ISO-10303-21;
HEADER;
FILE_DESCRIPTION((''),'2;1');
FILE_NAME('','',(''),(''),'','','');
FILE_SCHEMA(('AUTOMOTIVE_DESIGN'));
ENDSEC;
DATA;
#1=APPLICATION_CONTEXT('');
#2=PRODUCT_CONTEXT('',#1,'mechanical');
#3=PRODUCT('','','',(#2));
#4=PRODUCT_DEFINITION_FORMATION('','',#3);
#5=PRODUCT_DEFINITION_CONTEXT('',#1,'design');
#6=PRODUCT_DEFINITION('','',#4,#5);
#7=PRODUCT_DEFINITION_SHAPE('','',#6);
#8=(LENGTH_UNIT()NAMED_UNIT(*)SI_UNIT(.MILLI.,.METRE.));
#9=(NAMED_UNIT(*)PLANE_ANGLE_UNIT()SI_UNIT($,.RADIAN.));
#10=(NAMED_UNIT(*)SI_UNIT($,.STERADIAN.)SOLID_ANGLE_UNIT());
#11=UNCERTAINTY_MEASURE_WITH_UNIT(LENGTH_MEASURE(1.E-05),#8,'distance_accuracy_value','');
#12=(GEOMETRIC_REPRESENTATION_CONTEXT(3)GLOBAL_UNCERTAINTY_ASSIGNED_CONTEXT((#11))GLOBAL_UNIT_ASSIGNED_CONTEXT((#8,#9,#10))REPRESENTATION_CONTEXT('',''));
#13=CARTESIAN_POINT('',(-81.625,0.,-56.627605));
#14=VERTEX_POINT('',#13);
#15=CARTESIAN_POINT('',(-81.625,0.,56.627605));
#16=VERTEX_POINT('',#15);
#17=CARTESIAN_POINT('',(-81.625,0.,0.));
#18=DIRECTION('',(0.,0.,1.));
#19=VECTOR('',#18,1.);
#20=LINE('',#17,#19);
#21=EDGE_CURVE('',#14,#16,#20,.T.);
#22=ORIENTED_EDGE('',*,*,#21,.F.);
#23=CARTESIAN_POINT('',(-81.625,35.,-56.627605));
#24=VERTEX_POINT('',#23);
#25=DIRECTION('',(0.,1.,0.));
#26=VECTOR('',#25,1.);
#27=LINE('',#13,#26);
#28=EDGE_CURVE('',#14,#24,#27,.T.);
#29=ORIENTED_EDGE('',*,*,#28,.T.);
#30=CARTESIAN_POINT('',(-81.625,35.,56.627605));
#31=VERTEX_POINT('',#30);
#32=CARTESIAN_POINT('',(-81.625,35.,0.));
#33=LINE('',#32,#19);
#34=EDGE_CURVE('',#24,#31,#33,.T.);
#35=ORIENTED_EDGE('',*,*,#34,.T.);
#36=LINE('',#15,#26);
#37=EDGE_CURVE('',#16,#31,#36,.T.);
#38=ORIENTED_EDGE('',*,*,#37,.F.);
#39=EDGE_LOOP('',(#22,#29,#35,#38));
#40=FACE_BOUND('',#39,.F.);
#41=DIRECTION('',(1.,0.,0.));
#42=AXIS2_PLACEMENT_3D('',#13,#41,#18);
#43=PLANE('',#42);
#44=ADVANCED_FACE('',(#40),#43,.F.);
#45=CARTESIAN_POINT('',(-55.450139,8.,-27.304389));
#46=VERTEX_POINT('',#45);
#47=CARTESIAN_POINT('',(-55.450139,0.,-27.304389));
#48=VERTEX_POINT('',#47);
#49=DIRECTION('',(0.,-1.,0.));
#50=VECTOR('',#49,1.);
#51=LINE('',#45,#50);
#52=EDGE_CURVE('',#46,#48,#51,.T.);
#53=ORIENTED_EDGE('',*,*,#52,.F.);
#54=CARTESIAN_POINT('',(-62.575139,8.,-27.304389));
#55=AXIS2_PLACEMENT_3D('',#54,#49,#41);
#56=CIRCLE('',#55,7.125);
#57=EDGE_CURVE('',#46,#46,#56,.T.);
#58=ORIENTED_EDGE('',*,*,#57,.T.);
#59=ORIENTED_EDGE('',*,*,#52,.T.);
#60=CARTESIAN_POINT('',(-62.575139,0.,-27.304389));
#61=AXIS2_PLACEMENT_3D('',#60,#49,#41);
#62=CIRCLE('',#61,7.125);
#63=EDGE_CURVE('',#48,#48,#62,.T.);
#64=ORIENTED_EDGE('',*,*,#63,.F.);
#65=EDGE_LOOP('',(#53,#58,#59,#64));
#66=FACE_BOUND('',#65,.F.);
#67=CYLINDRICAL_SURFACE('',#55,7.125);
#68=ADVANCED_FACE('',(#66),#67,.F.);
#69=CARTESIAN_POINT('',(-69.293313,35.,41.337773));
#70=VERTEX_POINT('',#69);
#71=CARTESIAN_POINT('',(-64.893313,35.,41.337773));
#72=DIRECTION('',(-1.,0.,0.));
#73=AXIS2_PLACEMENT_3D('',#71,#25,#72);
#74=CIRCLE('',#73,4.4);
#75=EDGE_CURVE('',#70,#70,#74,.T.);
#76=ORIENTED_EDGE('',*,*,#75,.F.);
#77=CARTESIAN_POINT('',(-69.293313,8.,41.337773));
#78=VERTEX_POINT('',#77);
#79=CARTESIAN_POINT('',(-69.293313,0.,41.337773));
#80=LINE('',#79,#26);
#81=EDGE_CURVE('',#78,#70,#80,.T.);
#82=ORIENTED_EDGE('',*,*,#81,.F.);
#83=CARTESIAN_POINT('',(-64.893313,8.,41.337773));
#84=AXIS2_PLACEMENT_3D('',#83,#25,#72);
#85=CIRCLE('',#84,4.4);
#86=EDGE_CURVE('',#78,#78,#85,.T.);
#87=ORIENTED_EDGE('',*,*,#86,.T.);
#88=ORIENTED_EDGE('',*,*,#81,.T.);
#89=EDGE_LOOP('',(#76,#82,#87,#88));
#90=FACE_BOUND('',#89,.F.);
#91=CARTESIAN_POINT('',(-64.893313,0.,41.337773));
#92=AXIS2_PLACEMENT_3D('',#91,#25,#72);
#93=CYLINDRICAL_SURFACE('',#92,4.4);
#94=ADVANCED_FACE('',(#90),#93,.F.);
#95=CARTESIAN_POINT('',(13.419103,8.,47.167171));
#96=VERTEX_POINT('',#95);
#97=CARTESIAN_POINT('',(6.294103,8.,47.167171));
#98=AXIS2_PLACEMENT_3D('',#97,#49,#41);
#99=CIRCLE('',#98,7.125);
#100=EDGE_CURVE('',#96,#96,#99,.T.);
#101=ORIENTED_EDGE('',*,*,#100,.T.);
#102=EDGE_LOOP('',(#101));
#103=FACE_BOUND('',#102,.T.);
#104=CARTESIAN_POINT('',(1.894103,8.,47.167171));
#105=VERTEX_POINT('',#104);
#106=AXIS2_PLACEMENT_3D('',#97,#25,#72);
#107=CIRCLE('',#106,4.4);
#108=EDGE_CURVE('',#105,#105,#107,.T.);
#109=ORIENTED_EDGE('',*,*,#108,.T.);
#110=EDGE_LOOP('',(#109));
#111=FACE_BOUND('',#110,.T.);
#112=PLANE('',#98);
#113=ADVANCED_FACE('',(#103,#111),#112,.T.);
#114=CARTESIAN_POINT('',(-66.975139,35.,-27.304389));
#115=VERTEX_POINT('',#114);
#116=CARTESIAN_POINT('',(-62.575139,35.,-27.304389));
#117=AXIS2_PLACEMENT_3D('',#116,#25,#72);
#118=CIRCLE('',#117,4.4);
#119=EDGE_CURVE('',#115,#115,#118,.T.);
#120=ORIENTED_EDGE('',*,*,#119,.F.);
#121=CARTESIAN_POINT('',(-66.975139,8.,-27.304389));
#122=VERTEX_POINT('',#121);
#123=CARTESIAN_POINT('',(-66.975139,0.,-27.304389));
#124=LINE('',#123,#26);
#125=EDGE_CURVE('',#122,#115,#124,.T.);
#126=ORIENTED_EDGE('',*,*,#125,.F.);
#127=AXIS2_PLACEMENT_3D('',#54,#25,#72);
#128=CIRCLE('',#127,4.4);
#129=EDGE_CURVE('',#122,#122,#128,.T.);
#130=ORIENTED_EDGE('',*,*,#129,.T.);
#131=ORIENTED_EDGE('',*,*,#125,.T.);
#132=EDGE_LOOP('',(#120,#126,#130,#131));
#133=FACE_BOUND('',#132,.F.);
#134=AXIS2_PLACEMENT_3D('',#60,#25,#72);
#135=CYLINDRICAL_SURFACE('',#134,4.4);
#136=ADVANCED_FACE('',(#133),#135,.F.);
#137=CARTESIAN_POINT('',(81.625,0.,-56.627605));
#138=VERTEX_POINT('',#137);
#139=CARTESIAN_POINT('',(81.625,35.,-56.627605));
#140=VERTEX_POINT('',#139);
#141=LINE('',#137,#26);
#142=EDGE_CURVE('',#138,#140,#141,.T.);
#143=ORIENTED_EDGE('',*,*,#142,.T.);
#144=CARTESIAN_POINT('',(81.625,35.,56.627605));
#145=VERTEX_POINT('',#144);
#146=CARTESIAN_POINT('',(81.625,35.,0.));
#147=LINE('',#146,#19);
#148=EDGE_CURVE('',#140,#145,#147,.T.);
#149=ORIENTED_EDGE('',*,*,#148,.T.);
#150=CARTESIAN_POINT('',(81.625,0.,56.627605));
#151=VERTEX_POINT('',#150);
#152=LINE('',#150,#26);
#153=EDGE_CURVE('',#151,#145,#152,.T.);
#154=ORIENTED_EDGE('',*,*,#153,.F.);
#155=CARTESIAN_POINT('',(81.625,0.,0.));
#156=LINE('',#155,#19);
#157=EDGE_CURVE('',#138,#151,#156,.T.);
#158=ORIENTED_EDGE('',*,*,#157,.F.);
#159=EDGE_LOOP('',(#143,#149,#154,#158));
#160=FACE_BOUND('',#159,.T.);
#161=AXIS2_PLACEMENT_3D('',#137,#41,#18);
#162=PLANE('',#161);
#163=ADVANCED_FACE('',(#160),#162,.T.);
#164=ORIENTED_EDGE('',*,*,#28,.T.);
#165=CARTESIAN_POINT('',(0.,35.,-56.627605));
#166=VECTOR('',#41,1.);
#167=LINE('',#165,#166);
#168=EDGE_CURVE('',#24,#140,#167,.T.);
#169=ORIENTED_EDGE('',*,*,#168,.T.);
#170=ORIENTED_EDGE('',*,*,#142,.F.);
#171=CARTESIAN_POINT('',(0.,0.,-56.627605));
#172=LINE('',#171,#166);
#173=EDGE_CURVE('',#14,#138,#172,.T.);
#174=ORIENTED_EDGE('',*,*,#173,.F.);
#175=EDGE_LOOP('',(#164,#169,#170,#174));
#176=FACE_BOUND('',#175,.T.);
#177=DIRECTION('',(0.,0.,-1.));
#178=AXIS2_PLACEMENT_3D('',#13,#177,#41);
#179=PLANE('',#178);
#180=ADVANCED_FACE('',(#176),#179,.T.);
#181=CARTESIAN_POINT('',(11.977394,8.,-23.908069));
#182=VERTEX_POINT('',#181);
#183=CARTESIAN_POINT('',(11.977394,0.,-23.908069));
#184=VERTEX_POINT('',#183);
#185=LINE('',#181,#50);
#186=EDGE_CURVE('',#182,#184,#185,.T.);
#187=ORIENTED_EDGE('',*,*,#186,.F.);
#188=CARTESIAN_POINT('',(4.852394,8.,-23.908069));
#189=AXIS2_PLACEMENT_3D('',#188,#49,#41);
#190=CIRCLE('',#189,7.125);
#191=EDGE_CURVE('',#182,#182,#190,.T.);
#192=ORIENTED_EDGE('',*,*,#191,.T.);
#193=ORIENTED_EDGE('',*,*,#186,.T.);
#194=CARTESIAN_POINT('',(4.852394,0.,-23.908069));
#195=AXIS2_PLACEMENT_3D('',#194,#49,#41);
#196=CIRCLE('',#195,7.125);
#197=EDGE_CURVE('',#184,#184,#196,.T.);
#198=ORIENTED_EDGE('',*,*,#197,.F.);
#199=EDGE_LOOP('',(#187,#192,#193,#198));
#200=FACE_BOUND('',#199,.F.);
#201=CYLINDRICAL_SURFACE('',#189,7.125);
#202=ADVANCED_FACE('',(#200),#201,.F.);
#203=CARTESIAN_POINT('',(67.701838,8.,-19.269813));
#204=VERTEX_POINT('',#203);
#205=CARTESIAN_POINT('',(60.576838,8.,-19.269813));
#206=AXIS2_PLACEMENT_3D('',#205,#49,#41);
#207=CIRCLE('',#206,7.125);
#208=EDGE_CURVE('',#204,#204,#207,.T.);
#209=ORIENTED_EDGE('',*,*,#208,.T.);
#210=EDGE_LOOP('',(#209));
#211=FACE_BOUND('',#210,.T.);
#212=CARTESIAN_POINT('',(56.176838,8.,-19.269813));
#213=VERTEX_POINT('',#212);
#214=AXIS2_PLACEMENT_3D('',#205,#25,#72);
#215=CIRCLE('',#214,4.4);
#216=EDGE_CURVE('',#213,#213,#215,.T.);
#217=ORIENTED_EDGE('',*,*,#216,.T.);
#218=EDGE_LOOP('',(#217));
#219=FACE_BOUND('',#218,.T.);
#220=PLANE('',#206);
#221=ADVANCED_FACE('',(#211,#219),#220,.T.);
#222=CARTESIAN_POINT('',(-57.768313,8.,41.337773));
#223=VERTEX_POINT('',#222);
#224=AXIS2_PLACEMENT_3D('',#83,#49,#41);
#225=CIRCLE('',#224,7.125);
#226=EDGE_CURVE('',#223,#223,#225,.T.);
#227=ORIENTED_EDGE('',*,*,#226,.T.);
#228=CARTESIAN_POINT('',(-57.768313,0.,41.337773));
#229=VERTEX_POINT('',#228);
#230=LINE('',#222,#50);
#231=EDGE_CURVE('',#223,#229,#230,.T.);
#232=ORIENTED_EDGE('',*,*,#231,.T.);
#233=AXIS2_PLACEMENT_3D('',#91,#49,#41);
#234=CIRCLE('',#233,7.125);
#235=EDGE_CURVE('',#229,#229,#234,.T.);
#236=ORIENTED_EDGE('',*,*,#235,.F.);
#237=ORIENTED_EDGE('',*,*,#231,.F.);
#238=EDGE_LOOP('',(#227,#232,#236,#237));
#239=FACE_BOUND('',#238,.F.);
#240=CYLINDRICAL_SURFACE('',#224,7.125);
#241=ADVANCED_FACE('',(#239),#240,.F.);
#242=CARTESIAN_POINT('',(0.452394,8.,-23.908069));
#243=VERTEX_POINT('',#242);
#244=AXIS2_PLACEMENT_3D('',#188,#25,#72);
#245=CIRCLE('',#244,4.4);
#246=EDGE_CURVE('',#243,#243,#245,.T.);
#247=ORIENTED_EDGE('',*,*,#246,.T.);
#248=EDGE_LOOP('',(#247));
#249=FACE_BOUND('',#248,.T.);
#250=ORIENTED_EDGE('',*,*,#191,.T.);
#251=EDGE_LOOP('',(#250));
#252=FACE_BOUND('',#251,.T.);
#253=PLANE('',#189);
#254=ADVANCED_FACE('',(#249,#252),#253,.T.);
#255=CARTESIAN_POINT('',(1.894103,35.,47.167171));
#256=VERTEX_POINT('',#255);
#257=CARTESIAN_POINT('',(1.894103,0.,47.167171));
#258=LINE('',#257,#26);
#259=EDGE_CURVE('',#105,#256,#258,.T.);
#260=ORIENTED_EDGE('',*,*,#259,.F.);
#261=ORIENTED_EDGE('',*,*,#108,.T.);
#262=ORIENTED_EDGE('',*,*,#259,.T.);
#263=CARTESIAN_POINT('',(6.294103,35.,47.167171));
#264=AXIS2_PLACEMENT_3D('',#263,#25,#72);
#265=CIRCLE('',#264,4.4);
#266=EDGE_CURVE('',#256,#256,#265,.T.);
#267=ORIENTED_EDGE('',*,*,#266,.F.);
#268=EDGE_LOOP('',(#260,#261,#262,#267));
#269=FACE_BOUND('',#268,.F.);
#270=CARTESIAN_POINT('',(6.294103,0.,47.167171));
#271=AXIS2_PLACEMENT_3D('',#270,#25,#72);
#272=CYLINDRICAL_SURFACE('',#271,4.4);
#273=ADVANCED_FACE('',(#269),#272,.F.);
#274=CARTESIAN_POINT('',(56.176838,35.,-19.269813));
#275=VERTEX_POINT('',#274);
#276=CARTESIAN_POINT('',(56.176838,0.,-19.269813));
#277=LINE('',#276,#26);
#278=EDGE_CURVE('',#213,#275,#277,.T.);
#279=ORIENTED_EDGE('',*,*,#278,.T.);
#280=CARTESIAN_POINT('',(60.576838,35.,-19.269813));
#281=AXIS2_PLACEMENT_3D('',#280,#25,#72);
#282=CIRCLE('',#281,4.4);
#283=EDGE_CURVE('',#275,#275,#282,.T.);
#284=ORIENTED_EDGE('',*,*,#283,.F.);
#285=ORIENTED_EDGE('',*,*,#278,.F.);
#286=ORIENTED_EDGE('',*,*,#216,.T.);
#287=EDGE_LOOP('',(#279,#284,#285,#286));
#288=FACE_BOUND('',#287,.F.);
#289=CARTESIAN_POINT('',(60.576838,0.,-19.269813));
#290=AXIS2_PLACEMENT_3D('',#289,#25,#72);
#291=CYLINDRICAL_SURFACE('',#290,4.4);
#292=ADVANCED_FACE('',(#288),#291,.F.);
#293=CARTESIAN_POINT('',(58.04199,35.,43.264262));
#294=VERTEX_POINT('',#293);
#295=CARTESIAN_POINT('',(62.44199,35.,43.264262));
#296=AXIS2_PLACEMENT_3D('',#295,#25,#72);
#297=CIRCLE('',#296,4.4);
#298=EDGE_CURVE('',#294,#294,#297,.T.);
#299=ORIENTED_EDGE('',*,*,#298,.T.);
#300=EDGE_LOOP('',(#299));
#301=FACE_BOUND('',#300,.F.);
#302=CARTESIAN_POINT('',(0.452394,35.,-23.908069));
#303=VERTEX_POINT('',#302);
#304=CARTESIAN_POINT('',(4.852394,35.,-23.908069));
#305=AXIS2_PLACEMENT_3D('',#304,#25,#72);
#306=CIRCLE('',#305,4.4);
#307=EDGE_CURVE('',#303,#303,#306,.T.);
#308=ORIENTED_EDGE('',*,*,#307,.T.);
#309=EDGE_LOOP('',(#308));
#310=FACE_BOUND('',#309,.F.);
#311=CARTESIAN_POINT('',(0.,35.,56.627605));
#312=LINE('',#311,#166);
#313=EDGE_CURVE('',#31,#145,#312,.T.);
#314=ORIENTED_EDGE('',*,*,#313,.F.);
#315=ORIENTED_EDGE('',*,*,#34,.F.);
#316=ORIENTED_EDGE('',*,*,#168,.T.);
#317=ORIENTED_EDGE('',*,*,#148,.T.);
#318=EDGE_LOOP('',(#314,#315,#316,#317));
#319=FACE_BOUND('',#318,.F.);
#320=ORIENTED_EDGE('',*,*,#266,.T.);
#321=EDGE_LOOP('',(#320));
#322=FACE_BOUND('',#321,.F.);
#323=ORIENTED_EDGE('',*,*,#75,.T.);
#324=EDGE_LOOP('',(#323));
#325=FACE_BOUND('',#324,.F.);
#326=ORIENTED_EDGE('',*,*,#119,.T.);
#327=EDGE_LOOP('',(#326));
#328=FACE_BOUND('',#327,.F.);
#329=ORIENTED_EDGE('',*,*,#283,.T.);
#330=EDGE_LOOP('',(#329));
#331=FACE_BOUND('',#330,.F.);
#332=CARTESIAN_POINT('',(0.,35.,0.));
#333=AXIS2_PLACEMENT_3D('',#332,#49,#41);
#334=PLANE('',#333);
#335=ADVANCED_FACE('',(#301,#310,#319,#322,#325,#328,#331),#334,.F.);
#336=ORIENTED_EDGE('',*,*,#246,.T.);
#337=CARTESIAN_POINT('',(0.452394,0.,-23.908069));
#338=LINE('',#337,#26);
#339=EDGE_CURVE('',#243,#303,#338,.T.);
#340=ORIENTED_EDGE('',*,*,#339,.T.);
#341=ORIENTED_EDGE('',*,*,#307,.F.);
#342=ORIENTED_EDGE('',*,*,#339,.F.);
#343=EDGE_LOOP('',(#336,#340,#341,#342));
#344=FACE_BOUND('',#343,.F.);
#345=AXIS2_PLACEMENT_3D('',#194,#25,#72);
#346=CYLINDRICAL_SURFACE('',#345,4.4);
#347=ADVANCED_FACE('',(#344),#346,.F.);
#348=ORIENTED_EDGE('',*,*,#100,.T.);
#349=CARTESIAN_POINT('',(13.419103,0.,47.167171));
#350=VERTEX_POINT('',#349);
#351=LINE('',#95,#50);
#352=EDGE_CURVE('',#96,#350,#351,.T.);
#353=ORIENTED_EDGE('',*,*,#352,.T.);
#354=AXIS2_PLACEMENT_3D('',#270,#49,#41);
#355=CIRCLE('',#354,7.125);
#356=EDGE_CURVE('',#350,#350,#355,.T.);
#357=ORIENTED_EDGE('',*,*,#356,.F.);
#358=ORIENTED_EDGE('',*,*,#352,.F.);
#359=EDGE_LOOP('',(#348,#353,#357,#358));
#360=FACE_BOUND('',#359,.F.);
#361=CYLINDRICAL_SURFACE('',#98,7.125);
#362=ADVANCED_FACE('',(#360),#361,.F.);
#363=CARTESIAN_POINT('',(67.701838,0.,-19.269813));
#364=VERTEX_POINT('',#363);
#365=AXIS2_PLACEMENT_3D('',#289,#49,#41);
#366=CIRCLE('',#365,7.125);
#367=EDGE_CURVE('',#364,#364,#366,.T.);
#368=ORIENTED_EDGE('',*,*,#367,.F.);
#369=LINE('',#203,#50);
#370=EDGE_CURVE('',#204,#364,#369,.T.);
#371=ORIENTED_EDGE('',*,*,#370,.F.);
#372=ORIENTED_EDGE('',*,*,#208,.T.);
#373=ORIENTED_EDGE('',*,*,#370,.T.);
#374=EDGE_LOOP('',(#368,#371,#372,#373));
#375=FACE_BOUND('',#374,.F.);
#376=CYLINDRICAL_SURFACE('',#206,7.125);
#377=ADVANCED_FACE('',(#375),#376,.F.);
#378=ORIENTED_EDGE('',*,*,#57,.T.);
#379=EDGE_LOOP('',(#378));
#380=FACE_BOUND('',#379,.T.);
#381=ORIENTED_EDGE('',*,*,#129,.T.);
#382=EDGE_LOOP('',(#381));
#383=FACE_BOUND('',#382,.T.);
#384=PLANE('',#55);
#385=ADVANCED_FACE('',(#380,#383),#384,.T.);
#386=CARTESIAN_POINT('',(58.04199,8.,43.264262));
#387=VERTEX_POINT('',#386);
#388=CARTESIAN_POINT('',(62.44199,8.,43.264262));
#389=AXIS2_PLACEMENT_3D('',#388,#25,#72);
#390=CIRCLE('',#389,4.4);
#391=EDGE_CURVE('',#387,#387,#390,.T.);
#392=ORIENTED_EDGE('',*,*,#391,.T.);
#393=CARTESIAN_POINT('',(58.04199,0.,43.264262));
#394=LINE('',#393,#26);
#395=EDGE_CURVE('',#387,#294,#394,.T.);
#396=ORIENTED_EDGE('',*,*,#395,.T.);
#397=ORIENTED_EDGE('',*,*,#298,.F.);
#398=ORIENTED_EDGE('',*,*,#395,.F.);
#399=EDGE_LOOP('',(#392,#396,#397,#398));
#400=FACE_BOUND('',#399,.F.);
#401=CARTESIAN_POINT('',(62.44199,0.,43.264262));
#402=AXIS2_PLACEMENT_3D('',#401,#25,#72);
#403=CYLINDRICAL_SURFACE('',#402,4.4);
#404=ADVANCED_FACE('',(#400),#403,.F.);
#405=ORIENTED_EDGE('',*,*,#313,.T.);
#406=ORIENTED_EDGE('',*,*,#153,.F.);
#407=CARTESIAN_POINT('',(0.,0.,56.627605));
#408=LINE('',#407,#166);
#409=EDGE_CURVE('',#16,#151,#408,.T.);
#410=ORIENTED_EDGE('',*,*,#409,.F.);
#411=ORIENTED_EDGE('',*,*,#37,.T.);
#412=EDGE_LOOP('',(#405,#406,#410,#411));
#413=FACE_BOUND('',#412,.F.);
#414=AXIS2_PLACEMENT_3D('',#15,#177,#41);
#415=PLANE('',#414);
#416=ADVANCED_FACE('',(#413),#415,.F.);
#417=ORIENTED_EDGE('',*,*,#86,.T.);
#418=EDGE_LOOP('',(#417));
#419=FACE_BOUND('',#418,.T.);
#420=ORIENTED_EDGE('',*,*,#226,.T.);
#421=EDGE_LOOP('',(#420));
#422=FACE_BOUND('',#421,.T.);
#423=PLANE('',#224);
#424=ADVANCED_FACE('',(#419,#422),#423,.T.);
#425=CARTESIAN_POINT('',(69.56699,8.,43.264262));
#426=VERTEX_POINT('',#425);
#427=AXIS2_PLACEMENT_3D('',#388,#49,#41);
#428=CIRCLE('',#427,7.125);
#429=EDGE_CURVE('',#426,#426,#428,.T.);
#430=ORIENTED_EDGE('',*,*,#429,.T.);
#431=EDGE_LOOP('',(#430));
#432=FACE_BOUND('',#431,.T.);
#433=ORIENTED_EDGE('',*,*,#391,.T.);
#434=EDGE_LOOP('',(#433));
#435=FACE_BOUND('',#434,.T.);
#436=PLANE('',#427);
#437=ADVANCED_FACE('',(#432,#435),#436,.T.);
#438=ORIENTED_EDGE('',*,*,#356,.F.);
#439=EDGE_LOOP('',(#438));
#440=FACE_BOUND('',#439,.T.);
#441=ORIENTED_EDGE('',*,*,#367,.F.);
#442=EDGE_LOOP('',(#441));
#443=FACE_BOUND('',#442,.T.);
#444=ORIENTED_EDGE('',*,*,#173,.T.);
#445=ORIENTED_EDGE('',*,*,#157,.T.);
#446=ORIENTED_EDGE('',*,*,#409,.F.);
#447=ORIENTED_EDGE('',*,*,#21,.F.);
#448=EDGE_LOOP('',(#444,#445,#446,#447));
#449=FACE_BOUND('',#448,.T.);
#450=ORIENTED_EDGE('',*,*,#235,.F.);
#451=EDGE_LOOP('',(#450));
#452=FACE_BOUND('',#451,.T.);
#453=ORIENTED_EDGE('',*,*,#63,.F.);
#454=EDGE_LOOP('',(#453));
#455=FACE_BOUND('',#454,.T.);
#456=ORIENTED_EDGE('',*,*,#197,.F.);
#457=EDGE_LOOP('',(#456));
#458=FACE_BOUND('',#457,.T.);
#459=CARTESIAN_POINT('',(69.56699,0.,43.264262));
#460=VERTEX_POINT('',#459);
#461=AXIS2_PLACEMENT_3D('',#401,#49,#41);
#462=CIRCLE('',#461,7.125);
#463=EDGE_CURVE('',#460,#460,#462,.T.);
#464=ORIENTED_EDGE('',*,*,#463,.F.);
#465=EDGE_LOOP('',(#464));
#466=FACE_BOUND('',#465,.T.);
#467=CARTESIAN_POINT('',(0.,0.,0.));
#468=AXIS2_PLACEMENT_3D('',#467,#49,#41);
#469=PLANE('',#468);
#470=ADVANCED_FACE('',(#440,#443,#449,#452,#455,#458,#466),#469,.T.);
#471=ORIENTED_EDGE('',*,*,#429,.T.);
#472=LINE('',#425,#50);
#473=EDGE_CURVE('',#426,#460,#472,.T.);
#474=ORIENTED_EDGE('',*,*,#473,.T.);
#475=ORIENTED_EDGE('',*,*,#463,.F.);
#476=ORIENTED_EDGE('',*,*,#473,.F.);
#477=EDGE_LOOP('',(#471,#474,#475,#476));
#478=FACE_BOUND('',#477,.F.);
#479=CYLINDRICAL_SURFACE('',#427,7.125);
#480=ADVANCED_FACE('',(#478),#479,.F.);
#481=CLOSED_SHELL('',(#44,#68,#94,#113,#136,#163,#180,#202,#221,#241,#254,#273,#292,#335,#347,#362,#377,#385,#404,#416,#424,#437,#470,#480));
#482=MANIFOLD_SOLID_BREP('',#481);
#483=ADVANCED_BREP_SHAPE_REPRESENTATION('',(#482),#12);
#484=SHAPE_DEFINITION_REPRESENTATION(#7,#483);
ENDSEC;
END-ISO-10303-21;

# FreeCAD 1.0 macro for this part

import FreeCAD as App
import Part
import Sketcher
from FreeCAD import Vector
Q = App.Units.Quantity

doc = App.newDocument("Part")
body = doc.addObject("PartDesign::Body", "Body")

sketch1 = body.newObject("Sketcher::SketchObject", "Sketch")
sketch1.AttachmentSupport = (doc.getObject("XZ_Plane"), [""])
sketch1.MapMode = "FlatFace"
sketch1.addGeometry([
    Part.LineSegment(Vector(-82, 57, 0), Vector(-82, -57, 0)),
    Part.LineSegment(Vector(-82, -57, 0), Vector(82, -57, 0)),
    Part.LineSegment(Vector(82, -57, 0), Vector(82, 57, 0)),
    Part.LineSegment(Vector(82, 57, 0), Vector(-82, 57, 0)),
], False)
sketch1.addConstraint([
    Sketcher.Constraint("Coincident", 0, 2, 1, 1),
    Sketcher.Constraint("Coincident", 1, 2, 2, 1),
    Sketcher.Constraint("Coincident", 2, 2, 3, 1),
    Sketcher.Constraint("Coincident", 3, 2, 0, 1),
    Sketcher.Constraint("Vertical", 0),
    Sketcher.Constraint("Horizontal", 1),
    Sketcher.Constraint("Vertical", 2),
    Sketcher.Constraint("Horizontal", 3),
    Sketcher.Constraint("Symmetric", 0, 2, 2, 2, -1, 1),
    Sketcher.Constraint("DistanceX", 1, 1, 1, 2, Q("163.249999 mm")),
    Sketcher.Constraint("DistanceY", 0, 2, 0, 1, Q("113.25521 mm")),
])
pad1 = body.newObject("PartDesign::Pad", "Pad")
pad1.Profile = sketch1
pad1.Length = 35
pad1.Reversed = True

sketch2 = body.newObject("Sketcher::SketchObject", "Sketch001")
sketch2.AttachmentSupport = (doc.getObject("XZ_Plane"), [""])
sketch2.MapMode = "FlatFace"
sketch2.addGeometry([
    Part.Circle(Vector(-64.9, 41.3, 0), Vector(0, 0, 1), 4.4),
    Part.Circle(Vector(6.3, 47.2, 0), Vector(0, 0, 1), 4.4),
    Part.Circle(Vector(62.4, 43.3, 0), Vector(0, 0, 1), 4.4),
    Part.Circle(Vector(60.6, -19.3, 0), Vector(0, 0, 1), 4.4),
    Part.Circle(Vector(4.9, -23.9, 0), Vector(0, 0, 1), 4.4),
    Part.Circle(Vector(-62.6, -27.3, 0), Vector(0, 0, 1), 4.4),
], False)
sketch2.addConstraint([
    Sketcher.Constraint("Equal", 0, 1),
    Sketcher.Constraint("Equal", 1, 2),
    Sketcher.Constraint("Equal", 2, 3),
    Sketcher.Constraint("Equal", 3, 4),
    Sketcher.Constraint("Equal", 4, 5),
    Sketcher.Constraint("Diameter", 0, Q("8.8 mm")),
    Sketcher.Constraint("DistanceY", -1, 1, 1, 3, Q("47.167171 mm")),
    Sketcher.Constraint("DistanceX", -1, 1, 2, 3, Q("62.44199 mm")),
    Sketcher.Constraint("DistanceY", 4, 3, -1, 1, Q("23.908069 mm")),
    Sketcher.Constraint("DistanceX", 5, 3, -1, 1, Q("62.575139 mm")),
    Sketcher.Constraint("DistanceY", 5, 3, -1, 1, Q("27.304389 mm")),
    Sketcher.Constraint("DistanceY", 2, 3, 1, 3, Q("3.902908 mm")),
    Sketcher.Constraint("DistanceY", 0, 3, 2, 3, Q("1.926489 mm")),
    Sketcher.Constraint("DistanceX", 0, 3, 3, 3, Q("125.47015 mm")),
    Sketcher.Constraint("DistanceX", 4, 3, 1, 3, Q("1.441709 mm")),
    Sketcher.Constraint("DistanceX", 0, 3, -1, 1, Q("64.893313 mm")),
    Sketcher.Constraint("DistanceX", -1, 1, 1, 3, Q("6.294103 mm")),
    Sketcher.Constraint("DistanceY", 3, 3, -1, 1, Q("19.269813 mm")),
])
doc.recompute()
hole = body.newObject("PartDesign::Hole", "Hole")
hole.Profile = sketch2
hole.ThreadType = "None"
hole.Diameter = 8.8
hole.DepthType = "ThroughAll"
hole.HoleCutType = "Counterbore"
hole.HoleCutDiameter = 14.25
hole.HoleCutDepth = 8

doc.recompute()
